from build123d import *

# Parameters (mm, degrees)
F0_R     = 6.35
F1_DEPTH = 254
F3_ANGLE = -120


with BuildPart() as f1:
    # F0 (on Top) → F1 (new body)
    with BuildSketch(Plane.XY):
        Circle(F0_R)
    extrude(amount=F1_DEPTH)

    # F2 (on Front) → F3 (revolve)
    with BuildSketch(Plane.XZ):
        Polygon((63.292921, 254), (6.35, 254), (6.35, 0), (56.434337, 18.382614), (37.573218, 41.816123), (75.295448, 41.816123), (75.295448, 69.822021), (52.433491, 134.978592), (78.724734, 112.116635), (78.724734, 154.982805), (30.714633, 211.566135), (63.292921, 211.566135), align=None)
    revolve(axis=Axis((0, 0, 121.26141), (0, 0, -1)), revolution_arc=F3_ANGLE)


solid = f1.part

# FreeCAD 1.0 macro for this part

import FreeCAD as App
import Part
import Sketcher
Q = App.Units.Quantity


def add_polygon(sketch, points):
    """Adds a closed chain of lines whose ends are joined by coincident constraints."""
    first, n = sketch.GeometryCount, len(points)
    for a, b in zip(points, points[1:] + points[:1]):
        sketch.addGeometry(Part.LineSegment(App.Vector(*a, 0), App.Vector(*b, 0)), False)
    for i in range(n):
        sketch.addConstraint(Sketcher.Constraint("Coincident", first + i, 2, first + (i + 1) % n, 1))

doc = App.newDocument("Part")
body = doc.addObject("PartDesign::Body", "Body")

# Sketch on XY plane
sketch1 = doc.addObject("Sketcher::SketchObject", "Sketch")
body.addObject(sketch1)
sketch1.AttachmentSupport = (doc.XY_Plane, [""])
sketch1.MapMode = "FlatFace"
sketch1.addGeometry(Part.Circle(App.Vector(0, 0, 0), App.Vector(0, 0, 1), 6.35), False)
sketch1.addConstraint([
    Sketcher.Constraint("Coincident", 0, 3, -1, 1),
    Sketcher.Constraint("Diameter", 0, Q("0.5 in")),
])
pad1 = doc.addObject("PartDesign::Pad", "Pad")
body.addObject(pad1)
pad1.Profile = sketch1
pad1.Length = Q("10 in")

# Sketch on XZ plane
sketch2 = doc.addObject("Sketcher::SketchObject", "Sketch001")
body.addObject(sketch2)
sketch2.AttachmentSupport = (doc.XZ_Plane, [""])
sketch2.MapMode = "FlatFace"
add_polygon(sketch2, [(63.292921, 254), (6.35, 254), (6.35, 0), (56.434337, 18.382614), (37.573218, 41.816123), (75.295448, 41.816123), (75.295448, 69.822021), (52.433491, 134.978592), (78.724734, 112.116635), (78.724734, 154.982805), (30.714633, 211.566135), (63.292921, 211.566135)])  # lines 0-11
sketch2.addConstraint([
    Sketcher.Constraint("Horizontal", 0),
    Sketcher.Constraint("Vertical", 1),
    Sketcher.Constraint("Horizontal", 4),
    Sketcher.Constraint("Vertical", 5),
    Sketcher.Constraint("Vertical", 8),
    Sketcher.Constraint("Horizontal", 10),
    Sketcher.Constraint("Vertical", 11),
    Sketcher.Constraint("PointOnObject", 1, 2, -1),
    Sketcher.Constraint("DistanceY", 1, 2, 1, 1, Q("10 in")),
    Sketcher.Constraint("DistanceX", -1, 1, 0, 2, Q("0.25 in")),
    Sketcher.Constraint("DistanceY", 5, 1, 5, 2, Q("28.005898 mm")),
    Sketcher.Constraint("Distance", 2, Q("53.351301 mm")),
    Sketcher.Constraint("DistanceX", 0, 2, 0, 1, Q("56.942921 mm")),
    Sketcher.Constraint("DistanceX", 4, 1, 4, 2, Q("37.72223 mm")),
    Sketcher.Constraint("DistanceY", 8, 1, 8, 2, Q("42.86617 mm")),
    Sketcher.Constraint("DistanceX", 9, 2, 8, 2, Q("48.010101 mm")),
    Sketcher.Constraint("DistanceY", 7, 2, 9, 2, Q("99.4495 mm")),
    Sketcher.Constraint("DistanceX", 10, 1, 10, 2, Q("32.578288 mm")),
    Sketcher.Constraint("DistanceY", 11, 1, 11, 2, Q("42.433865 mm")),
    Sketcher.Constraint("DistanceY", -1, 1, 5, 2, Q("69.822021 mm")),
    Sketcher.Constraint("DistanceX", -1, 1, 6, 2, Q("52.433491 mm")),
    Sketcher.Constraint("DistanceY", -1, 1, 6, 2, Q("134.978592 mm")),
    Sketcher.Constraint("DistanceX", 3, 2, 2, 2, Q("18.861119 mm")),
    Sketcher.Constraint("DistanceY", 2, 2, 3, 2, Q("23.433509 mm")),
])
revolution = doc.addObject("PartDesign::Revolution", "Revolution")
body.addObject(revolution)
revolution.Profile = sketch2
revolution.ReferenceAxis = (sketch2, ["V_Axis"])
revolution.Angle = 120

doc.recompute()
